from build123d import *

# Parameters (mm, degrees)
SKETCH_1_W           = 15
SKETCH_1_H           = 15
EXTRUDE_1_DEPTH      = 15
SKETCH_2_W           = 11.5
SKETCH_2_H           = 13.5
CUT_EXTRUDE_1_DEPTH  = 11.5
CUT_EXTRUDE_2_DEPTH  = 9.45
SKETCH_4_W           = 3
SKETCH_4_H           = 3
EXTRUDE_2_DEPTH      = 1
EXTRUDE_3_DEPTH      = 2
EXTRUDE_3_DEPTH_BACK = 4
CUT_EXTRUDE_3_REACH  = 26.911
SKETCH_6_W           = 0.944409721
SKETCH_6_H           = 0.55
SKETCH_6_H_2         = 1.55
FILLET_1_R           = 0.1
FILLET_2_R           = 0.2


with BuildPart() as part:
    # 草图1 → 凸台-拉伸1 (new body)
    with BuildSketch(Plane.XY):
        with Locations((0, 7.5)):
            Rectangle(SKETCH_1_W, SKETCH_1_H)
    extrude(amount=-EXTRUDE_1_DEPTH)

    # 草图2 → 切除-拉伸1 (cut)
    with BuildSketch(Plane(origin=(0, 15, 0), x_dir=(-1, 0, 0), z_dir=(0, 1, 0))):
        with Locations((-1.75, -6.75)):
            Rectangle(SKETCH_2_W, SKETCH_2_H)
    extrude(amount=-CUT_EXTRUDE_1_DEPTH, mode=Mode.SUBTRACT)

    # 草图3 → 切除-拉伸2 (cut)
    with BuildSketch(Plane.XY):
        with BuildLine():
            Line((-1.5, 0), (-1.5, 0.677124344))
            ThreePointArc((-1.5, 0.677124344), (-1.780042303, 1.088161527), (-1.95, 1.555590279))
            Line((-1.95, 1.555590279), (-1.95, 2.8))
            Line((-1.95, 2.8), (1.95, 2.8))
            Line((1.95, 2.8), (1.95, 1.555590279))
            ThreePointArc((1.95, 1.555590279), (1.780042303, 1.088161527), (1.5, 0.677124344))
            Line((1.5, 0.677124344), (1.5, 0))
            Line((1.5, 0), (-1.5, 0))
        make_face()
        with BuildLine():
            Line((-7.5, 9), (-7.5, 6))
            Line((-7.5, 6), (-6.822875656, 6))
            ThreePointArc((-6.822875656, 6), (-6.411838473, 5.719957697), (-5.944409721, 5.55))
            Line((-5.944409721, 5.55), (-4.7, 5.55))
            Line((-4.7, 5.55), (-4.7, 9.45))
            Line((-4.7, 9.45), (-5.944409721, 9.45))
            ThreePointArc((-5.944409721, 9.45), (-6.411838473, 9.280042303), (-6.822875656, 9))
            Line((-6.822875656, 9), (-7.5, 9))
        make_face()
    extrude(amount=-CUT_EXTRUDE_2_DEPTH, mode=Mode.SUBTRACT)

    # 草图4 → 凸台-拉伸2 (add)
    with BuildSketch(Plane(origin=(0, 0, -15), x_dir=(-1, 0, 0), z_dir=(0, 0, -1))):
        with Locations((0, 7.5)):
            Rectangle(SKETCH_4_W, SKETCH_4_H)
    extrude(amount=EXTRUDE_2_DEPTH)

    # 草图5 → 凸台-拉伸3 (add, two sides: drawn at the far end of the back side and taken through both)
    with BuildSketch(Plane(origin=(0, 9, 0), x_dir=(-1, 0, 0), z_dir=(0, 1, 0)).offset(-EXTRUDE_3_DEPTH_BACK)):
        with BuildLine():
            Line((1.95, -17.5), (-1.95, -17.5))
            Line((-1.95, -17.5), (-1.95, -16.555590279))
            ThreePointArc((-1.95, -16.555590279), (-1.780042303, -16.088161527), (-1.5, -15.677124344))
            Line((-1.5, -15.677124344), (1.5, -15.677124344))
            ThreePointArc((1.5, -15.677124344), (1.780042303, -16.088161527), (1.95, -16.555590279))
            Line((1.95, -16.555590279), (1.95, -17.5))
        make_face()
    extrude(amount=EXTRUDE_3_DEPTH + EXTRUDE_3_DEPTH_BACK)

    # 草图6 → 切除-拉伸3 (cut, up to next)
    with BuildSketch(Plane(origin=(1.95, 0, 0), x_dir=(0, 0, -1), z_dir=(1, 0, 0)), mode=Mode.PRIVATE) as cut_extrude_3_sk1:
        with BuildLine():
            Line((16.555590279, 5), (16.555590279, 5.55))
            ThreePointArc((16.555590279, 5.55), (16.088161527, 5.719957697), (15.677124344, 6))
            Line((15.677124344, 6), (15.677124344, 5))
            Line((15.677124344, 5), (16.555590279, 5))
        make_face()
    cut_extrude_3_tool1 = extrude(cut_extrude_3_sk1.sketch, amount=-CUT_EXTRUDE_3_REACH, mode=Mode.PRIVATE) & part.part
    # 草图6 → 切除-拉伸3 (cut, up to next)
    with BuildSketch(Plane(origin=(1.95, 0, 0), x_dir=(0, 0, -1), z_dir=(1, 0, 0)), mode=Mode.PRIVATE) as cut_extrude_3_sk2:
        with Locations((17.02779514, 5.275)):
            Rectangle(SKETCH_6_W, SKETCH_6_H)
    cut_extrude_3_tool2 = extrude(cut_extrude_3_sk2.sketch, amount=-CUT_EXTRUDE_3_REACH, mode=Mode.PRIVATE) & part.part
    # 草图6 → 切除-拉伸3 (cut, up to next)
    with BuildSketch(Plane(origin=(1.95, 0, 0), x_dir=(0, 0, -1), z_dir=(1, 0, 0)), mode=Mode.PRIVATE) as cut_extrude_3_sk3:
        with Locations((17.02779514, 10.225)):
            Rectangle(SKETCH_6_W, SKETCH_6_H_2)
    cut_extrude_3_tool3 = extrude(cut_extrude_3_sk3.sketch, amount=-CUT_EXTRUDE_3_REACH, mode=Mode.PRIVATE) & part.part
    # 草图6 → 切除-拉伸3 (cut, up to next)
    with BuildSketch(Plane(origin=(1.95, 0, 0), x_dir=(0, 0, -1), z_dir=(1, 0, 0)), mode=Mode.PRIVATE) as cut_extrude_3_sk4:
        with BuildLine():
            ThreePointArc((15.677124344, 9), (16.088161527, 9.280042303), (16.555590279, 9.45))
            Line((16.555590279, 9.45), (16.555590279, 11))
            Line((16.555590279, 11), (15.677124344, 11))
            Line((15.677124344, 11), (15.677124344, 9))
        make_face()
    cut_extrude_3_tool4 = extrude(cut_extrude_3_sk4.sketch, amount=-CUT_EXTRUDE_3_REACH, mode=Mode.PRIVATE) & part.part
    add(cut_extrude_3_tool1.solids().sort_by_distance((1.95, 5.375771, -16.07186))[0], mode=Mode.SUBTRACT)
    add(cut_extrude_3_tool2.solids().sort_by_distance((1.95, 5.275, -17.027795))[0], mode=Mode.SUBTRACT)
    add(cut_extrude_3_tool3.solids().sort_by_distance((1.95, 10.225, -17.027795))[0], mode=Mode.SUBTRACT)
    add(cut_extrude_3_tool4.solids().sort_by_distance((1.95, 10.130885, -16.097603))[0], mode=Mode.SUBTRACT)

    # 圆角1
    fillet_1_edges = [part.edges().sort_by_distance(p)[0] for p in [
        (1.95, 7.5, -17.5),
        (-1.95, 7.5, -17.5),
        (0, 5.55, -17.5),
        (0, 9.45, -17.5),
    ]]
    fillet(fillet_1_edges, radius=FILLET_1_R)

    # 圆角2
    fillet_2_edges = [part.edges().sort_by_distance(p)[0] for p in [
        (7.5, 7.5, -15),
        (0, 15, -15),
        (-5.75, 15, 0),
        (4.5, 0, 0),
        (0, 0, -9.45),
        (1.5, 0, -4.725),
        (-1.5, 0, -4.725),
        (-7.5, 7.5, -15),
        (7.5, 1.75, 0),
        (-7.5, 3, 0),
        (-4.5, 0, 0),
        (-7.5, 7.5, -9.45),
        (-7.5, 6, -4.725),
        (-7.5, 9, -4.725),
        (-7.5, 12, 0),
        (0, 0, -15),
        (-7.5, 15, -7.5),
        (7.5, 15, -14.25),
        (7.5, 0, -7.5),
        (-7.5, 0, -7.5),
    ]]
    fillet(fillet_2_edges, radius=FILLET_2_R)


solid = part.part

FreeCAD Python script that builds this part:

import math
import FreeCAD as App
import Part
import Sketcher
from FreeCAD import Vector


def edges_at(feature, points):
    """Names of the edges that pass closest to the given points."""
    edges = feature.Shape.Edges
    near = lambda p: min(range(len(edges)), key=lambda i: edges[i].distToShape(Part.Vertex(*p))[0])
    return sorted({f"Edge{near(p) + 1}" for p in points})


def add_polygon(sketch, points):
    """Adds a closed chain of lines whose ends are joined by coincident constraints."""
    first, n = sketch.GeometryCount, len(points)
    for a, b in zip(points, points[1:] + points[:1]):
        sketch.addGeometry(Part.LineSegment(App.Vector(*a, 0), App.Vector(*b, 0)), False)
    for i in range(n):
        sketch.addConstraint(Sketcher.Constraint("Coincident", first + i, 2, first + (i + 1) % n, 1))

doc = App.newDocument("Part")
body = doc.addObject("PartDesign::Body", "Body")

sketch1 = doc.addObject("Sketcher::SketchObject", "Sketch")
body.addObject(sketch1)
sketch1.AttachmentSupport = (doc.XY_Plane, [""])
sketch1.MapMode = "FlatFace"
add_polygon(sketch1, [(-7.5, 15), (-7.5, 0), (7.5, 0), (7.5, 15)])
sketch1.addConstraint([
    Sketcher.Constraint("Vertical", 0),
    Sketcher.Constraint("Horizontal", 1),
    Sketcher.Constraint("Vertical", 2),
    Sketcher.Constraint("Horizontal", 3),
    Sketcher.Constraint("Symmetric", 0, 2, 1, 2, -1, 1),
    Sketcher.Constraint("Equal", 3, 0),
    Sketcher.Constraint("DistanceX", 1, 1, 1, 2, 15.0),
])
pad1 = doc.addObject("PartDesign::Pad", "Pad")
body.addObject(pad1)
pad1.Profile = sketch1
pad1.Length = 15
pad1.Reversed = True

sketch2 = doc.addObject("Sketcher::SketchObject", "Sketch001")
body.addObject(sketch2)
sketch2.AttachmentSupport = (doc.XZ_Plane, [""])
sketch2.MapMode = "FlatFace"
sketch2.AttachmentOffset = App.Placement(Vector(0, 0, -15), App.Rotation())
add_polygon(sketch2, [(7.5, 0), (7.5, -13.5), (-4, -13.5), (-4, 0)])
sketch2.addConstraint([
    Sketcher.Constraint("Vertical", 0),
    Sketcher.Constraint("Horizontal", 1),
    Sketcher.Constraint("Vertical", 2),
    Sketcher.Constraint("Horizontal", 3),
    Sketcher.Constraint("PointOnObject", 2, 2, -1),
    Sketcher.Constraint("DistanceX", 1, 2, 1, 1, 11.5),
    Sketcher.Constraint("DistanceY", 0, 2, 0, 1, 13.5),
    Sketcher.Constraint("DistanceX", 1, 2, -1, 1, 4.0),
])
pocket1 = doc.addObject("PartDesign::Pocket", "Pocket")
body.addObject(pocket1)
pocket1.Profile = sketch2
pocket1.Length = 11.5
pocket1.Reversed = True

sketch3 = doc.addObject("Sketcher::SketchObject", "Sketch002")
body.addObject(sketch3)
sketch3.AttachmentSupport = (doc.XY_Plane, [""])
sketch3.MapMode = "FlatFace"
sketch3.addGeometry([
    Part.LineSegment(Vector(-1.5, 0.677124, 0), Vector(-1.5, 0, 0)),
    Part.LineSegment(Vector(-1.5, 0, 0), Vector(1.5, 0, 0)),
    Part.LineSegment(Vector(1.5, 0, 0), Vector(1.5, 0.677124, 0)),
    Part.ArcOfCircle(Part.Circle(Vector(0, 2, 0), Vector(0, 0, 1), 2), math.radians(-41.409622), math.radians(-12.838568)),
    Part.LineSegment(Vector(1.95, 1.55559, 0), Vector(1.95, 2.8, 0)),
    Part.LineSegment(Vector(1.95, 2.8, 0), Vector(-1.95, 2.8, 0)),
    Part.LineSegment(Vector(-1.95, 2.8, 0), Vector(-1.95, 1.55559, 0)),
    Part.ArcOfCircle(Part.Circle(Vector(0, 2, 0), Vector(0, 0, 1), 2), math.radians(-167.161432), math.radians(-138.590378)),
    Part.LineSegment(Vector(-7.5, 9, 0), Vector(-7.5, 6, 0)),
    Part.LineSegment(Vector(-7.5, 6, 0), Vector(-6.822876, 6, 0)),
    Part.ArcOfCircle(Part.Circle(Vector(-5.5, 7.5, 0), Vector(0, 0, 1), 2), math.radians(-131.409622), math.radians(-102.838568)),
    Part.LineSegment(Vector(-5.94441, 5.55, 0), Vector(-4.7, 5.55, 0)),
    Part.LineSegment(Vector(-4.7, 5.55, 0), Vector(-4.7, 9.45, 0)),
    Part.LineSegment(Vector(-4.7, 9.45, 0), Vector(-5.94441, 9.45, 0)),
    Part.ArcOfCircle(Part.Circle(Vector(-5.5, 7.5, 0), Vector(0, 0, 1), 2), math.radians(102.838568), math.radians(131.409622)),
    Part.LineSegment(Vector(-6.822876, 9, 0), Vector(-7.5, 9, 0)),
], False)
sketch3.addConstraint([
    Sketcher.Constraint("Coincident", 0, 2, 1, 1),
    Sketcher.Constraint("Coincident", 1, 2, 2, 1),
    Sketcher.Constraint("Coincident", 2, 2, 3, 1),
    Sketcher.Constraint("Coincident", 3, 2, 4, 1),
    Sketcher.Constraint("Coincident", 4, 2, 5, 1),
    Sketcher.Constraint("Coincident", 5, 2, 6, 1),
    Sketcher.Constraint("Coincident", 6, 2, 7, 1),
    Sketcher.Constraint("Coincident", 7, 2, 0, 1),
    Sketcher.Constraint("Coincident", 8, 2, 9, 1),
    Sketcher.Constraint("Coincident", 9, 2, 10, 1),
    Sketcher.Constraint("Coincident", 10, 2, 11, 1),
    Sketcher.Constraint("Coincident", 11, 2, 12, 1),
    Sketcher.Constraint("Coincident", 12, 2, 13, 1),
    Sketcher.Constraint("Coincident", 13, 2, 14, 1),
    Sketcher.Constraint("Coincident", 14, 2, 15, 1),
    Sketcher.Constraint("Coincident", 15, 2, 8, 1),
    Sketcher.Constraint("Vertical", 0),
    Sketcher.Constraint("Horizontal", 1),
    Sketcher.Constraint("Vertical", 2),
    Sketcher.Constraint("Vertical", 4),
    Sketcher.Constraint("Horizontal", 5),
    Sketcher.Constraint("Vertical", 6),
    Sketcher.Constraint("Vertical", 8),
    Sketcher.Constraint("Horizontal", 9),
    Sketcher.Constraint("Horizontal", 11),
    Sketcher.Constraint("Vertical", 12),
    Sketcher.Constraint("Horizontal", 13),
    Sketcher.Constraint("Horizontal", 15),
    Sketcher.Constraint("Coincident", 7, 3, 3, 3),
    Sketcher.Constraint("Coincident", 14, 3, 10, 3),
    Sketcher.Constraint("Equal", 3, 7),
    Sketcher.Constraint("Equal", 7, 10),
    Sketcher.Constraint("Equal", 10, 14),
    Sketcher.Constraint("Symmetric", 0, 2, 1, 2, -1, 1),
    Sketcher.Constraint("Symmetric", 3, 2, 6, 2, -2),
    Sketcher.Constraint("Vertical", 10, 2, 13, 2),
    Sketcher.Constraint("Vertical", 9, 2, 14, 2),
    Sketcher.Constraint("Equal", 15, 0),
    Sketcher.Constraint("Equal", 13, 4),
    Sketcher.Constraint("Equal", 1, 8),
    Sketcher.Constraint("Equal", 5, 12),
    Sketcher.Constraint("Radius", 3, 2.0),
    Sketcher.Constraint("DistanceX", 1, 1, 1, 2, 3.0),
    Sketcher.Constraint("DistanceX", 5, 2, 5, 1, 3.9),
    Sketcher.Constraint("DistanceY", -1, 1, 3, 3, 2.0),
    Sketcher.Constraint("DistanceY", -1, 1, 8, 2, 6.0),
    Sketcher.Constraint("DistanceX", 10, 3, 0, 2, 4.0),
    Sketcher.Constraint("DistanceY", -1, 1, 4, 2, 2.8),
])
pocket2 = doc.addObject("PartDesign::Pocket", "Pocket001")
body.addObject(pocket2)
pocket2.Profile = sketch3
pocket2.Length = 9.45

sketch4 = doc.addObject("Sketcher::SketchObject", "Sketch003")
body.addObject(sketch4)
sketch4.AttachmentSupport = (doc.XY_Plane, [""])
sketch4.MapMode = "FlatFace"
sketch4.AttachmentOffset = App.Placement(Vector(0, 0, -15), App.Rotation())
add_polygon(sketch4, [(1.5, 9), (1.5, 6), (-1.5, 6), (-1.5, 9)])
sketch4.addConstraint([
    Sketcher.Constraint("Vertical", 0),
    Sketcher.Constraint("Horizontal", 1),
    Sketcher.Constraint("Vertical", 2),
    Sketcher.Constraint("Horizontal", 3),
    Sketcher.Constraint("Equal", 3, 0),
    Sketcher.Constraint("DistanceX", 1, 2, 1, 1, 3.0),
    Sketcher.Constraint("DistanceY", -1, 1, 0, 2, 6.0),
    Sketcher.Constraint("DistanceX", -1, 1, 0, 2, 1.5),
])
pad2 = doc.addObject("PartDesign::Pad", "Pad001")
body.addObject(pad2)
pad2.Profile = sketch4
pad2.Length = 1
pad2.Reversed = True

sketch5 = doc.addObject("Sketcher::SketchObject", "Sketch004")
body.addObject(sketch5)
sketch5.AttachmentSupport = (doc.XZ_Plane, [""])
sketch5.MapMode = "FlatFace"
sketch5.AttachmentOffset = App.Placement(Vector(0, 0, -9), App.Rotation())
sketch5.addGeometry([
    Part.LineSegment(Vector(1.95, -17.5, 0), Vector(-1.95, -17.5, 0)),
    Part.LineSegment(Vector(-1.95, -17.5, 0), Vector(-1.95, -16.55559, 0)),
    Part.ArcOfCircle(Part.Circle(Vector(0, -17, 0), Vector(0, 0, 1), 2), math.radians(138.590378), math.radians(167.161432)),
    Part.LineSegment(Vector(-1.5, -15.677124, 0), Vector(1.5, -15.677124, 0)),
    Part.ArcOfCircle(Part.Circle(Vector(0, -17, 0), Vector(0, 0, 1), 2), math.radians(12.838568), math.radians(41.409622)),
    Part.LineSegment(Vector(1.95, -16.55559, 0), Vector(1.95, -17.5, 0)),
], False)
sketch5.addConstraint([
    Sketcher.Constraint("Coincident", 0, 2, 1, 1),
    Sketcher.Constraint("Coincident", 1, 2, 2, 2),
    Sketcher.Constraint("Coincident", 2, 1, 3, 1),
    Sketcher.Constraint("Coincident", 3, 2, 4, 2),
    Sketcher.Constraint("Coincident", 4, 1, 5, 1),
    Sketcher.Constraint("Coincident", 5, 2, 0, 1),
    Sketcher.Constraint("Horizontal", 0),
    Sketcher.Constraint("Vertical", 1),
    Sketcher.Constraint("Horizontal", 3),
    Sketcher.Constraint("Vertical", 5),
    Sketcher.Constraint("Coincident", 4, 3, 2, 3),
    Sketcher.Constraint("Equal", 2, 4),
    Sketcher.Constraint("Symmetric", 1, 2, 4, 1, -2),
    Sketcher.Constraint("Radius", 2, 2.0),
    Sketcher.Constraint("DistanceX", 3, 1, 3, 2, 3.0),
    Sketcher.Constraint("DistanceX", 0, 2, 0, 1, 3.9),
    Sketcher.Constraint("DistanceY", 2, 3, -1, 1, 17.0),
    Sketcher.Constraint("DistanceY", 0, 2, -1, 1, 17.5),
])
pad3 = doc.addObject("PartDesign::Pad", "Pad002")
body.addObject(pad3)
pad3.Profile = sketch5
pad3.Type = "TwoLengths"
pad3.Length = 2
pad3.Length2 = 4
pad3.Reversed = True

sketch6 = doc.addObject("Sketcher::SketchObject", "Sketch005")
body.addObject(sketch6)
sketch6.AttachmentSupport = (doc.YZ_Plane, [""])
sketch6.MapMode = "FlatFace"
sketch6.AttachmentOffset = App.Placement(Vector(0, 0, 1.95), App.Rotation())
sketch6.addGeometry([
    Part.LineSegment(Vector(5, -16.55559, 0), Vector(5.55, -16.55559, 0)),
    Part.ArcOfCircle(Part.Circle(Vector(7.5, -17, 0), Vector(0, 0, 1), 2), math.radians(138.590378), math.radians(167.161432)),
    Part.LineSegment(Vector(6, -15.677124, 0), Vector(5, -15.677124, 0)),
    Part.LineSegment(Vector(5, -15.677124, 0), Vector(5, -16.55559, 0)),
], False)
sketch6.addConstraint([
    Sketcher.Constraint("Coincident", 0, 2, 1, 2),
    Sketcher.Constraint("Coincident", 1, 1, 2, 1),
    Sketcher.Constraint("Coincident", 2, 2, 3, 1),
    Sketcher.Constraint("Coincident", 3, 2, 0, 1),
    Sketcher.Constraint("Horizontal", 0),
    Sketcher.Constraint("Horizontal", 2),
    Sketcher.Constraint("Vertical", 3),
    Sketcher.Constraint("Radius", 1, 2.0),
    Sketcher.Constraint("DistanceX", 2, 2, 2, 1, 1.0),
    Sketcher.Constraint("DistanceY", 1, 3, -1, 1, 17.0),
    Sketcher.Constraint("DistanceX", -1, 1, 1, 1, 6.0),
    Sketcher.Constraint("DistanceX", 0, 1, 0, 2, 0.55),
    Sketcher.Constraint("DistanceX", -1, 1, 1, 3, 7.5),
])
pocket3 = doc.addObject("PartDesign::Pocket", "Pocket002")
body.addObject(pocket3)
pocket3.Profile = sketch6
pocket3.Length = 3.9

sketch7 = doc.addObject("Sketcher::SketchObject", "Sketch006")
body.addObject(sketch7)
sketch7.AttachmentSupport = (doc.YZ_Plane, [""])
sketch7.MapMode = "FlatFace"
sketch7.AttachmentOffset = App.Placement(Vector(0, 0, 1.95), App.Rotation())
add_polygon(sketch7, [(5.55, -16.55559), (5, -16.55559), (5, -17.5), (5.55, -17.5)])
sketch7.addConstraint([
    Sketcher.Constraint("Horizontal", 0),
    Sketcher.Constraint("Vertical", 1),
    Sketcher.Constraint("Horizontal", 2),
    Sketcher.Constraint("Vertical", 3),
    Sketcher.Constraint("DistanceX", -1, 1, 0, 2, 5.0),
    Sketcher.Constraint("DistanceX", 0, 2, 0, 1, 0.55),
    Sketcher.Constraint("DistanceY", 1, 2, -1, 1, 17.5),
    Sketcher.Constraint("DistanceY", 1, 2, 1, 1, 0.94441),
])
pocket4 = doc.addObject("PartDesign::Pocket", "Pocket003")
body.addObject(pocket4)
pocket4.Profile = sketch7
pocket4.Type = "UpToFirst"

sketch8 = doc.addObject("Sketcher::SketchObject", "Sketch007")
body.addObject(sketch8)
sketch8.AttachmentSupport = (doc.YZ_Plane, [""])
sketch8.MapMode = "FlatFace"
sketch8.AttachmentOffset = App.Placement(Vector(0, 0, 1.95), App.Rotation())
add_polygon(sketch8, [(11, -16.55559), (9.45, -16.55559), (9.45, -17.5), (11, -17.5)])
sketch8.addConstraint([
    Sketcher.Constraint("Horizontal", 0),
    Sketcher.Constraint("Vertical", 1),
    Sketcher.Constraint("Horizontal", 2),
    Sketcher.Constraint("Vertical", 3),
    Sketcher.Constraint("DistanceX", -1, 1, 2, 2, 11.0),
    Sketcher.Constraint("DistanceX", 0, 2, 0, 1, 1.55),
    Sketcher.Constraint("DistanceY", 1, 2, -1, 1, 17.5),
    Sketcher.Constraint("DistanceY", 1, 2, 1, 1, 0.94441),
])
pocket5 = doc.addObject("PartDesign::Pocket", "Pocket004")
body.addObject(pocket5)
pocket5.Profile = sketch8
pocket5.Type = "UpToFirst"

sketch9 = doc.addObject("Sketcher::SketchObject", "Sketch008")
body.addObject(sketch9)
sketch9.AttachmentSupport = (doc.YZ_Plane, [""])
sketch9.MapMode = "FlatFace"
sketch9.AttachmentOffset = App.Placement(Vector(0, 0, 1.95), App.Rotation())
sketch9.addGeometry([
    Part.ArcOfCircle(Part.Circle(Vector(7.5, -17, 0), Vector(0, 0, 1), 2), math.radians(12.838568), math.radians(41.409622)),
    Part.LineSegment(Vector(9.45, -16.55559, 0), Vector(11, -16.55559, 0)),
    Part.LineSegment(Vector(11, -16.55559, 0), Vector(11, -15.677124, 0)),
    Part.LineSegment(Vector(11, -15.677124, 0), Vector(9, -15.677124, 0)),
], False)
sketch9.addConstraint([
    Sketcher.Constraint("Coincident", 0, 1, 1, 1),
    Sketcher.Constraint("Coincident", 1, 2, 2, 1),
    Sketcher.Constraint("Coincident", 2, 2, 3, 1),
    Sketcher.Constraint("Coincident", 3, 2, 0, 2),
    Sketcher.Constraint("Horizontal", 1),
    Sketcher.Constraint("Vertical", 2),
    Sketcher.Constraint("Horizontal", 3),
    Sketcher.Constraint("Radius", 0, 2.0),
    Sketcher.Constraint("DistanceX", 3, 2, 3, 1, 2.0),
    Sketcher.Constraint("DistanceY", 0, 3, -1, 1, 17.0),
    Sketcher.Constraint("DistanceX", -1, 1, 1, 2, 11.0),
    Sketcher.Constraint("DistanceX", 1, 1, 1, 2, 1.55),
    Sketcher.Constraint("DistanceX", -1, 1, 0, 3, 7.5),
])
pocket6 = doc.addObject("PartDesign::Pocket", "Pocket005")
body.addObject(pocket6)
pocket6.Profile = sketch9
pocket6.Length = 3.9
doc.recompute()

fillet = doc.addObject("PartDesign::Fillet", "Fillet")
body.addObject(fillet)
fillet.Base = (pocket6, edges_at(pocket6, [
    (1.95, 7.5, -17.5),
    (-1.95, 7.5, -17.5),
    (0, 5.55, -17.5),
    (0, 9.45, -17.5),
]))
fillet.Radius = 0.1
doc.recompute()

fillet2 = doc.addObject("PartDesign::Fillet", "Fillet001")
body.addObject(fillet2)
fillet2.Base = (fillet, edges_at(fillet, [
    (7.5, 7.5, -15),
    (0, 15, -15),
    (-5.75, 15, 0),
    (4.5, 0, 0),
    (0, 0, -9.45),
    (1.5, 0, -4.725),
    (-1.5, 0, -4.725),
    (-7.5, 7.5, -15),
    (7.5, 1.75, 0),
    (-7.5, 3, 0),
    (-4.5, 0, 0),
    (-7.5, 7.5, -9.45),
    (-7.5, 6, -4.725),
    (-7.5, 9, -4.725),
    (-7.5, 12, 0),
    (0, 0, -15),
    (-7.5, 15, -7.5),
    (7.5, 15, -14.25),
    (7.5, 0, -7.5),
    (-7.5, 0, -7.5),
]))
fillet2.Radius = 0.2

doc.recompute()
